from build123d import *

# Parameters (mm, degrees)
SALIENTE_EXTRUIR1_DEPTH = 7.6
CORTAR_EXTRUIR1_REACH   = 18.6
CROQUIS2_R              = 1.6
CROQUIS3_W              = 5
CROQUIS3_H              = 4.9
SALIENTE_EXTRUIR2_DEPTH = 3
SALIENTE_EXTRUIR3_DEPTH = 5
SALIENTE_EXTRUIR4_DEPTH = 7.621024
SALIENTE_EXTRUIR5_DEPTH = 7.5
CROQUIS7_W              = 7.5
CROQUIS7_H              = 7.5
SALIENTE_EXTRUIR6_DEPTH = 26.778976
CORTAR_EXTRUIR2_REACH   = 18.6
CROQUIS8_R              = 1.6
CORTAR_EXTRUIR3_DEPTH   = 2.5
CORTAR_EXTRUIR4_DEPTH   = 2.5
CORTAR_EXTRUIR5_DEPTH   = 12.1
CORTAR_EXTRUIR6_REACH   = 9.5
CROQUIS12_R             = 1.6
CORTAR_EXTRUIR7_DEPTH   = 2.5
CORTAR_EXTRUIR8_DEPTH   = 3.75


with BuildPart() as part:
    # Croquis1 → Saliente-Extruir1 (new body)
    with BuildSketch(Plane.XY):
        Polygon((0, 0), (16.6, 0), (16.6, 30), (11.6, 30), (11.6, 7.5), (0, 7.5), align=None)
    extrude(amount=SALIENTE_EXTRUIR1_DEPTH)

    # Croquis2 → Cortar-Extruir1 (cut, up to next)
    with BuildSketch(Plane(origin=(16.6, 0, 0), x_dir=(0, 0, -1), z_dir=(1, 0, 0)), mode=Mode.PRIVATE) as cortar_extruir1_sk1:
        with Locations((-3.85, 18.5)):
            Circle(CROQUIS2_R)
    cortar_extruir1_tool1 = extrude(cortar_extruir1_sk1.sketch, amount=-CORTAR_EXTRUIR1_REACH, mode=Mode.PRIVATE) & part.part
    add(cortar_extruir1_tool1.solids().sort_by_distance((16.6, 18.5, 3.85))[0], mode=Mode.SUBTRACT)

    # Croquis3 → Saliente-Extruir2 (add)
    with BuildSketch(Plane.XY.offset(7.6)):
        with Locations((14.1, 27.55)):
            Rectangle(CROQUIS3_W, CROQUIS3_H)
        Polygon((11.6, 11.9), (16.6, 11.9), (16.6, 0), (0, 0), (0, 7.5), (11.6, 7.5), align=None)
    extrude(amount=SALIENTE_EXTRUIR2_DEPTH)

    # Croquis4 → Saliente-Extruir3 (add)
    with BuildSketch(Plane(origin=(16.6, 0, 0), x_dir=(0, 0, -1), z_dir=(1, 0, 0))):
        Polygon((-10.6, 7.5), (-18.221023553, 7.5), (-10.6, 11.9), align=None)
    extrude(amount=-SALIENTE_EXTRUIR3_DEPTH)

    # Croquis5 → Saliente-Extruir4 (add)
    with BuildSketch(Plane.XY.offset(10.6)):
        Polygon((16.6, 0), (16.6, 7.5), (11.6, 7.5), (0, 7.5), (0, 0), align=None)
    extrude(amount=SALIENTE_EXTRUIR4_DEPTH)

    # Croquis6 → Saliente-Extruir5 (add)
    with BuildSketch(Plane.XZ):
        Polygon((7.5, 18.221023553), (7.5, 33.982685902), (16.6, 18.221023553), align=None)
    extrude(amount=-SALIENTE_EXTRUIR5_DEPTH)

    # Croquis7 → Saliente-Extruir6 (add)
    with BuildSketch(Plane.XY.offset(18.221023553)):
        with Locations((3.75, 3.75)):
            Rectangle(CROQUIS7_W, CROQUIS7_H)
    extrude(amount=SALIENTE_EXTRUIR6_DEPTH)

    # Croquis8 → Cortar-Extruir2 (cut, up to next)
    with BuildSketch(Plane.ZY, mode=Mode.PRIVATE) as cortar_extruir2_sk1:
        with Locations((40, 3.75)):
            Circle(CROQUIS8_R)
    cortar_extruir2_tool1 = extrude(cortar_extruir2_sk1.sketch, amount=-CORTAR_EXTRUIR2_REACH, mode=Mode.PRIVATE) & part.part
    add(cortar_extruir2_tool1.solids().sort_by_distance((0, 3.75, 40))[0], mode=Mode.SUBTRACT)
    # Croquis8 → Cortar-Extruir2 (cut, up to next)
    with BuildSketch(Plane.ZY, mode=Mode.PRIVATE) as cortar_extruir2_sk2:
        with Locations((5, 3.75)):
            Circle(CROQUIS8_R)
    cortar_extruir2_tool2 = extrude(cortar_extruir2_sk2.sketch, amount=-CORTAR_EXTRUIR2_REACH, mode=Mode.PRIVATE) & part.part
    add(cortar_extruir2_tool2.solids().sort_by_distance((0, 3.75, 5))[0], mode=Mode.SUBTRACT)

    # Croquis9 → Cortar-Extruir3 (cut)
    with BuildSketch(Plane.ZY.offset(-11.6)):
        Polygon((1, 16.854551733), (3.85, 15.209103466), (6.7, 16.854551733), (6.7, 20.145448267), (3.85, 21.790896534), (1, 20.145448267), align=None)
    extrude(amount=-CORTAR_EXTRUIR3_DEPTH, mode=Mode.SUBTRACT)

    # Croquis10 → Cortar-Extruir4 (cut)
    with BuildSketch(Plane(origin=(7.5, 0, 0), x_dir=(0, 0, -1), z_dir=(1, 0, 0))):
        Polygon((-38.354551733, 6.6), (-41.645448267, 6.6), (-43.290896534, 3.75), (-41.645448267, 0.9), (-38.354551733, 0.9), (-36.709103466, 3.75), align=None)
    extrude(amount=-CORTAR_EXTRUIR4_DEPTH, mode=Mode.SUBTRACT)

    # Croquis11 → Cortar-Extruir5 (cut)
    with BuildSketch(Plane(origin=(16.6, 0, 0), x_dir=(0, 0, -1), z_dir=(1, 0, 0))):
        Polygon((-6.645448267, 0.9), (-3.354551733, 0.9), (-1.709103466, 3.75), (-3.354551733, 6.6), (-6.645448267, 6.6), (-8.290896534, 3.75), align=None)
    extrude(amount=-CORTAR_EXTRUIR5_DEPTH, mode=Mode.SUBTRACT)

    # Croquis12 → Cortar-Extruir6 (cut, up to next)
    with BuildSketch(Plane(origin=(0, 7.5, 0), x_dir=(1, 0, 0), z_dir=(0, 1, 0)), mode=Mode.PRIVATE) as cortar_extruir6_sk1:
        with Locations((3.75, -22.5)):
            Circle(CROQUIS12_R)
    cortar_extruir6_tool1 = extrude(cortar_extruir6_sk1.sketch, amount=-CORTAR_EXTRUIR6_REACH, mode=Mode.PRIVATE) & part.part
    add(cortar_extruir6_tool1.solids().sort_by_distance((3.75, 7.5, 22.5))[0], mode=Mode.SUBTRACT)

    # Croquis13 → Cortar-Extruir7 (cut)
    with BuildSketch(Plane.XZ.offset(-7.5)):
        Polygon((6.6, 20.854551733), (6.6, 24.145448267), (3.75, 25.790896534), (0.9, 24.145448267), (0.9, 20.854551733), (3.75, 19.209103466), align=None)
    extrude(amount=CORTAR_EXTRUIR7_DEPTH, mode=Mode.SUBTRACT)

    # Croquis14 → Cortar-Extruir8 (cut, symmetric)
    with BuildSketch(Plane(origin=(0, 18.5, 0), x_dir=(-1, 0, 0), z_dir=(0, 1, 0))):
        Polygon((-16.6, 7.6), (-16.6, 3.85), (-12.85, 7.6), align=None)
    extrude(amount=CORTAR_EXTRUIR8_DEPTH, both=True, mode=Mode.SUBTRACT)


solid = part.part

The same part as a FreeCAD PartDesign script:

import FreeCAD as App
import Part
import Sketcher
from FreeCAD import Vector
Q = App.Units.Quantity


def add_polygon(sketch, points):
    """Adds a closed chain of lines whose ends are joined by coincident constraints."""
    first, n = sketch.GeometryCount, len(points)
    for a, b in zip(points, points[1:] + points[:1]):
        sketch.addGeometry(Part.LineSegment(App.Vector(*a, 0), App.Vector(*b, 0)), False)
    for i in range(n):
        sketch.addConstraint(Sketcher.Constraint("Coincident", first + i, 2, first + (i + 1) % n, 1))

doc = App.newDocument("Part")
body = doc.addObject("PartDesign::Body", "Body")

sketch1 = body.newObject("Sketcher::SketchObject", "Sketch")
sketch1.AttachmentSupport = (doc.getObject("XY_Plane"), [""])
sketch1.MapMode = "FlatFace"
add_polygon(sketch1, [(0, 0), (17, 0), (17, 30), (12, 30), (12, 8), (0, 8)])
sketch1.addConstraint([
    Sketcher.Constraint("Horizontal", 0),
    Sketcher.Constraint("Vertical", 1),
    Sketcher.Constraint("Horizontal", 2),
    Sketcher.Constraint("Vertical", 3),
    Sketcher.Constraint("Horizontal", 4),
    Sketcher.Constraint("Vertical", 5),
    Sketcher.Constraint("Coincident", 5, 2, -1, 1),
    Sketcher.Constraint("DistanceX", 2, 2, 2, 1, Q("5 mm")),
    Sketcher.Constraint("DistanceY", 1, 1, 1, 2, Q("30 mm")),
    Sketcher.Constraint("DistanceX", 0, 1, 0, 2, Q("16.6 mm")),
    Sketcher.Constraint("DistanceY", 3, 2, 3, 1, Q("22.5 mm")),
])
pad1 = body.newObject("PartDesign::Pad", "Pad")
pad1.Profile = sketch1
pad1.Length = 7.6

sketch2 = body.newObject("Sketcher::SketchObject", "Sketch001")
sketch2.AttachmentSupport = (doc.getObject("YZ_Plane"), [""])
sketch2.MapMode = "FlatFace"
sketch2.AttachmentOffset = App.Placement(Vector(0, 0, 16.6), App.Rotation())
sketch2.addGeometry(Part.Circle(Vector(18.5, 3.9, 0), Vector(0, 0, 1), 1.6), False)
sketch2.addConstraint([
    Sketcher.Constraint("Diameter", 0, Q("3.2 mm")),
    Sketcher.Constraint("DistanceX", -1, 1, 0, 3, Q("18.5 mm")),
    Sketcher.Constraint("DistanceY", -1, 1, 0, 3, Q("3.85 mm")),
])
pocket1 = body.newObject("PartDesign::Pocket", "Pocket")
pocket1.Profile = sketch2
pocket1.Type = "UpToFirst"

sketch3 = body.newObject("Sketcher::SketchObject", "Sketch002")
sketch3.AttachmentSupport = (doc.getObject("XY_Plane"), [""])
sketch3.MapMode = "FlatFace"
sketch3.AttachmentOffset = App.Placement(Vector(0, 0, 7.6), App.Rotation())
add_polygon(sketch3, [(11.6, 30), (11.6, 25.1), (16.6, 25.1), (16.6, 30)])
add_polygon(sketch3, [(16.6, 11.9), (11.6, 11.9), (11.6, 7.5), (0, 7.5), (0, 0), (16.6, 0)])
sketch3.addConstraint([
    Sketcher.Constraint("Vertical", 0),
    Sketcher.Constraint("Horizontal", 1),
    Sketcher.Constraint("Vertical", 2),
    Sketcher.Constraint("Horizontal", 3),
    Sketcher.Constraint("Horizontal", 4),
    Sketcher.Constraint("Vertical", 5),
    Sketcher.Constraint("Horizontal", 6),
    Sketcher.Constraint("Vertical", 7),
    Sketcher.Constraint("Horizontal", 8),
    Sketcher.Constraint("Vertical", 9),
    Sketcher.Constraint("Coincident", 7, 2, -1, 1),
    Sketcher.Constraint("Vertical", 3, 2, 4, 2),
    Sketcher.Constraint("Vertical", 2, 2, 8, 2),
    Sketcher.Constraint("DistanceX", 1, 1, 1, 2, Q("5 mm")),
    Sketcher.Constraint("DistanceX", 6, 2, 6, 1, Q("11.6 mm")),
    Sketcher.Constraint("DistanceY", 0, 2, 0, 1, Q("4.9 mm")),
    Sketcher.Constraint("DistanceY", 5, 2, 5, 1, Q("4.4 mm")),
    Sketcher.Constraint("DistanceY", 7, 2, 7, 1, Q("7.5 mm")),
    Sketcher.Constraint("DistanceY", -1, 1, 2, 2, Q("30 mm")),
])
pad2 = body.newObject("PartDesign::Pad", "Pad001")
pad2.Profile = sketch3
pad2.Length = 3

sketch4 = body.newObject("Sketcher::SketchObject", "Sketch003")
sketch4.AttachmentSupport = (doc.getObject("YZ_Plane"), [""])
sketch4.MapMode = "FlatFace"
sketch4.AttachmentOffset = App.Placement(Vector(0, 0, 16.6), App.Rotation())
add_polygon(sketch4, [(7.5, 18.2), (7.5, 10.6), (11.9, 10.6)])
sketch4.addConstraint([
    Sketcher.Constraint("Vertical", 0),
    Sketcher.Constraint("Horizontal", 1),
    Sketcher.Constraint("Angle", 2, Q("120 deg")),
    Sketcher.Constraint("DistanceX", 1, 1, 1, 2, Q("4.4 mm")),
    Sketcher.Constraint("DistanceX", -1, 1, 0, 2, Q("7.5 mm")),
    Sketcher.Constraint("DistanceY", -1, 1, 0, 2, Q("10.6 mm")),
])
pad3 = body.newObject("PartDesign::Pad", "Pad002")
pad3.Profile = sketch4
pad3.Length = 5
pad3.Reversed = True

sketch5 = body.newObject("Sketcher::SketchObject", "Sketch004")
sketch5.AttachmentSupport = (doc.getObject("XY_Plane"), [""])
sketch5.MapMode = "FlatFace"
sketch5.AttachmentOffset = App.Placement(Vector(0, 0, 10.6), App.Rotation())
add_polygon(sketch5, [(17, 0), (17, 8), (0, 8), (0, 0)])
sketch5.addConstraint([
    Sketcher.Constraint("Vertical", 0),
    Sketcher.Constraint("Horizontal", 1),
    Sketcher.Constraint("Vertical", 2),
    Sketcher.Constraint("Horizontal", 3),
    Sketcher.Constraint("Coincident", 2, 2, -1, 1),
    Sketcher.Constraint("DistanceX", 1, 2, 1, 1, Q("16.6 mm")),
    Sketcher.Constraint("DistanceY", 0, 1, 0, 2, Q("7.5 mm")),
])
pad4 = body.newObject("PartDesign::Pad", "Pad003")
pad4.Profile = sketch5
pad4.Length = 7.621024

sketch6 = body.newObject("Sketcher::SketchObject", "Sketch005")
sketch6.AttachmentSupport = (doc.getObject("XZ_Plane"), [""])
sketch6.MapMode = "FlatFace"
add_polygon(sketch6, [(8, 34), (8, 18), (17, 18)])
sketch6.addConstraint([
    Sketcher.Constraint("Vertical", 0),
    Sketcher.Constraint("Horizontal", 1),
    Sketcher.Constraint("Angle", 2, Q("120 deg")),
    Sketcher.Constraint("DistanceX", 1, 1, 1, 2, Q("9.1 mm")),
    Sketcher.Constraint("DistanceX", -1, 1, 0, 2, Q("7.5 mm")),
    Sketcher.Constraint("DistanceY", -1, 1, 0, 2, Q("18.221024 mm")),
])
pad5 = body.newObject("PartDesign::Pad", "Pad004")
pad5.Profile = sketch6
pad5.Length = 7.5
pad5.Reversed = True

sketch7 = body.newObject("Sketcher::SketchObject", "Sketch006")
sketch7.AttachmentSupport = (doc.getObject("XY_Plane"), [""])
sketch7.MapMode = "FlatFace"
sketch7.AttachmentOffset = App.Placement(Vector(0, 0, 18.221024), App.Rotation())
add_polygon(sketch7, [(0, 8), (0, 0), (8, 0), (8, 8)])
sketch7.addConstraint([
    Sketcher.Constraint("Vertical", 0),
    Sketcher.Constraint("Horizontal", 1),
    Sketcher.Constraint("Vertical", 2),
    Sketcher.Constraint("Horizontal", 3),
    Sketcher.Constraint("Coincident", 0, 2, -1, 1),
    Sketcher.Constraint("Equal", 3, 0),
    Sketcher.Constraint("DistanceX", 1, 1, 1, 2, Q("7.5 mm")),
])
pad6 = body.newObject("PartDesign::Pad", "Pad005")
pad6.Profile = sketch7
pad6.Length = 26.778976

sketch8 = body.newObject("Sketcher::SketchObject", "Sketch007")
sketch8.AttachmentSupport = (doc.getObject("YZ_Plane"), [""])
sketch8.MapMode = "FlatFace"
sketch8.addGeometry(Part.Circle(Vector(3.8, 40, 0), Vector(0, 0, 1), 1.6), False)
sketch8.addConstraint([
    Sketcher.Constraint("Diameter", 0, Q("3.2 mm")),
    Sketcher.Constraint("DistanceY", -1, 1, 0, 3, Q("40 mm")),
    Sketcher.Constraint("DistanceX", -1, 1, 0, 3, Q("3.75 mm")),
])
pocket2 = body.newObject("PartDesign::Pocket", "Pocket001")
pocket2.Profile = sketch8
pocket2.Type = "UpToFirst"
pocket2.Reversed = True

sketch9 = body.newObject("Sketcher::SketchObject", "Sketch008")
sketch9.AttachmentSupport = (doc.getObject("YZ_Plane"), [""])
sketch9.MapMode = "FlatFace"
sketch9.addGeometry(Part.Circle(Vector(3.8, 5, 0), Vector(0, 0, 1), 1.6), False)
sketch9.addConstraint([
    Sketcher.Constraint("Diameter", 0, Q("3.2 mm")),
    Sketcher.Constraint("DistanceY", -1, 1, 0, 3, Q("5 mm")),
    Sketcher.Constraint("DistanceX", -1, 1, 0, 3, Q("3.75 mm")),
])
pocket3 = body.newObject("PartDesign::Pocket", "Pocket002")
pocket3.Profile = sketch9
pocket3.Type = "UpToFirst"
pocket3.Reversed = True

sketch10 = body.newObject("Sketcher::SketchObject", "Sketch009")
sketch10.AttachmentSupport = (doc.getObject("YZ_Plane"), [""])
sketch10.MapMode = "FlatFace"
sketch10.AttachmentOffset = App.Placement(Vector(0, 0, 11.6), App.Rotation())
add_polygon(sketch10, [(16.9, 1), (15.2, 3.9), (16.9, 6.7), (20.1, 6.7), (21.8, 3.9), (20.1, 1)])
sketch10.addConstraint([
    Sketcher.Constraint("Horizontal", 2),
    Sketcher.Constraint("Horizontal", 5),
    Sketcher.Constraint("Parallel", 0, 3),
    Sketcher.Constraint("Parallel", 1, 4),
    Sketcher.Constraint("Horizontal", 0, 2, 3, 2),
    Sketcher.Constraint("Vertical", 2, 2, 4, 2),
    Sketcher.Constraint("Vertical", 1, 2, 5, 2),
    Sketcher.Constraint("Angle", 0, Q("120 deg")),
    Sketcher.Constraint("DistanceY", -1, 1, 4, 2, Q("1 mm")),
    Sketcher.Constraint("DistanceY", -1, 1, 1, 2, Q("6.7 mm")),
    Sketcher.Constraint("DistanceX", 2, 1, 2, 2, Q("3.290897 mm")),
    Sketcher.Constraint("DistanceX", -1, 1, 1, 2, Q("16.854552 mm")),
])
pocket4 = body.newObject("PartDesign::Pocket", "Pocket003")
pocket4.Profile = sketch10
pocket4.Length = 2.5
pocket4.Reversed = True

sketch11 = body.newObject("Sketcher::SketchObject", "Sketch010")
sketch11.AttachmentSupport = (doc.getObject("YZ_Plane"), [""])
sketch11.MapMode = "FlatFace"
sketch11.AttachmentOffset = App.Placement(Vector(0, 0, 7.5), App.Rotation())
add_polygon(sketch11, [(6.6, 38.4), (6.6, 41.6), (3.8, 43.3), (0.9, 41.6), (0.9, 38.4), (3.8, 36.7)])
sketch11.addConstraint([
    Sketcher.Constraint("Vertical", 0),
    Sketcher.Constraint("Vertical", 3),
    Sketcher.Constraint("Parallel", 1, 4),
    Sketcher.Constraint("Parallel", 2, 5),
    Sketcher.Constraint("Horizontal", 0, 2, 2, 2),
    Sketcher.Constraint("Horizontal", 3, 2, 5, 2),
    Sketcher.Constraint("Vertical", 1, 2, 4, 2),
    Sketcher.Constraint("Angle", 1, Q("150 deg")),
    Sketcher.Constraint("DistanceX", -1, 1, 0, 2, Q("6.6 mm")),
    Sketcher.Constraint("DistanceX", -1, 1, 2, 2, Q("0.9 mm")),
    Sketcher.Constraint("DistanceY", 0, 1, 0, 2, Q("3.290897 mm")),
    Sketcher.Constraint("DistanceY", -1, 1, 0, 2, Q("41.645448 mm")),
])
pocket5 = body.newObject("PartDesign::Pocket", "Pocket004")
pocket5.Profile = sketch11
pocket5.Length = 2.5

sketch12 = body.newObject("Sketcher::SketchObject", "Sketch011")
sketch12.AttachmentSupport = (doc.getObject("YZ_Plane"), [""])
sketch12.MapMode = "FlatFace"
sketch12.AttachmentOffset = App.Placement(Vector(0, 0, 16.6), App.Rotation())
add_polygon(sketch12, [(0.9, 6.6), (0.9, 3.4), (3.8, 1.7), (6.6, 3.4), (6.6, 6.6), (3.8, 8.3)])
sketch12.addConstraint([
    Sketcher.Constraint("Vertical", 0),
    Sketcher.Constraint("Vertical", 3),
    Sketcher.Constraint("Parallel", 1, 4),
    Sketcher.Constraint("Parallel", 2, 5),
    Sketcher.Constraint("Horizontal", 0, 2, 2, 2),
    Sketcher.Constraint("Horizontal", 3, 2, 5, 2),
    Sketcher.Constraint("Vertical", 1, 2, 4, 2),
    Sketcher.Constraint("Angle", 1, Q("-30 deg")),
    Sketcher.Constraint("DistanceX", -1, 1, 0, 2, Q("0.9 mm")),
    Sketcher.Constraint("DistanceX", -1, 1, 2, 2, Q("6.6 mm")),
    Sketcher.Constraint("DistanceY", 0, 2, 0, 1, Q("3.290897 mm")),
    Sketcher.Constraint("DistanceY", -1, 1, 0, 2, Q("3.354552 mm")),
])
pocket6 = body.newObject("PartDesign::Pocket", "Pocket005")
pocket6.Profile = sketch12
pocket6.Length = 12.1

sketch13 = body.newObject("Sketcher::SketchObject", "Sketch012")
sketch13.AttachmentSupport = (doc.getObject("XZ_Plane"), [""])
sketch13.MapMode = "FlatFace"
sketch13.AttachmentOffset = App.Placement(Vector(0, 0, -7.5), App.Rotation())
sketch13.addGeometry(Part.Circle(Vector(3.8, 22.5, 0), Vector(0, 0, 1), 1.6), False)
sketch13.addConstraint([
    Sketcher.Constraint("Diameter", 0, Q("3.2 mm")),
    Sketcher.Constraint("DistanceY", -1, 1, 0, 3, Q("22.5 mm")),
    Sketcher.Constraint("DistanceX", -1, 1, 0, 3, Q("3.75 mm")),
])
pocket7 = body.newObject("PartDesign::Pocket", "Pocket006")
pocket7.Profile = sketch13
pocket7.Type = "UpToFirst"
pocket7.Reversed = True

sketch14 = body.newObject("Sketcher::SketchObject", "Sketch013")
sketch14.AttachmentSupport = (doc.getObject("XZ_Plane"), [""])
sketch14.MapMode = "FlatFace"
sketch14.AttachmentOffset = App.Placement(Vector(0, 0, -7.5), App.Rotation())
add_polygon(sketch14, [(6.6, 20.9), (6.6, 24.1), (3.8, 25.8), (0.9, 24.1), (0.9, 20.9), (3.8, 19.2)])
sketch14.addConstraint([
    Sketcher.Constraint("Vertical", 0),
    Sketcher.Constraint("Vertical", 3),
    Sketcher.Constraint("Parallel", 1, 4),
    Sketcher.Constraint("Parallel", 2, 5),
    Sketcher.Constraint("Horizontal", 0, 2, 2, 2),
    Sketcher.Constraint("Horizontal", 3, 2, 5, 2),
    Sketcher.Constraint("Vertical", 1, 2, 4, 2),
    Sketcher.Constraint("Angle", 1, Q("150 deg")),
    Sketcher.Constraint("DistanceX", -1, 1, 0, 2, Q("6.6 mm")),
    Sketcher.Constraint("DistanceX", -1, 1, 2, 2, Q("0.9 mm")),
    Sketcher.Constraint("DistanceY", 0, 1, 0, 2, Q("3.290897 mm")),
    Sketcher.Constraint("DistanceY", -1, 1, 0, 2, Q("24.145448 mm")),
])
pocket8 = body.newObject("PartDesign::Pocket", "Pocket007")
pocket8.Profile = sketch14
pocket8.Length = 2.5
pocket8.Reversed = True

sketch15 = body.newObject("Sketcher::SketchObject", "Sketch014")
sketch15.AttachmentSupport = (doc.getObject("XZ_Plane"), [""])
sketch15.MapMode = "FlatFace"
sketch15.AttachmentOffset = App.Placement(Vector(0, 0, -18.5), App.Rotation())
add_polygon(sketch15, [(16.6, 7.6), (16.6, 3.9), (12.8, 7.6)])
sketch15.addConstraint([
    Sketcher.Constraint("Vertical", 0),
    Sketcher.Constraint("Horizontal", 2),
    Sketcher.Constraint("Equal", 2, 0),
    Sketcher.Constraint("DistanceX", 2, 1, 2, 2, Q("3.75 mm")),
    Sketcher.Constraint("DistanceX", -1, 1, 0, 2, Q("16.6 mm")),
    Sketcher.Constraint("DistanceY", -1, 1, 1, 2, Q("7.6 mm")),
])
pocket9 = body.newObject("PartDesign::Pocket", "Pocket008")
pocket9.Profile = sketch15
pocket9.Length = 7.5
pocket9.Midplane = True

doc.recompute()
